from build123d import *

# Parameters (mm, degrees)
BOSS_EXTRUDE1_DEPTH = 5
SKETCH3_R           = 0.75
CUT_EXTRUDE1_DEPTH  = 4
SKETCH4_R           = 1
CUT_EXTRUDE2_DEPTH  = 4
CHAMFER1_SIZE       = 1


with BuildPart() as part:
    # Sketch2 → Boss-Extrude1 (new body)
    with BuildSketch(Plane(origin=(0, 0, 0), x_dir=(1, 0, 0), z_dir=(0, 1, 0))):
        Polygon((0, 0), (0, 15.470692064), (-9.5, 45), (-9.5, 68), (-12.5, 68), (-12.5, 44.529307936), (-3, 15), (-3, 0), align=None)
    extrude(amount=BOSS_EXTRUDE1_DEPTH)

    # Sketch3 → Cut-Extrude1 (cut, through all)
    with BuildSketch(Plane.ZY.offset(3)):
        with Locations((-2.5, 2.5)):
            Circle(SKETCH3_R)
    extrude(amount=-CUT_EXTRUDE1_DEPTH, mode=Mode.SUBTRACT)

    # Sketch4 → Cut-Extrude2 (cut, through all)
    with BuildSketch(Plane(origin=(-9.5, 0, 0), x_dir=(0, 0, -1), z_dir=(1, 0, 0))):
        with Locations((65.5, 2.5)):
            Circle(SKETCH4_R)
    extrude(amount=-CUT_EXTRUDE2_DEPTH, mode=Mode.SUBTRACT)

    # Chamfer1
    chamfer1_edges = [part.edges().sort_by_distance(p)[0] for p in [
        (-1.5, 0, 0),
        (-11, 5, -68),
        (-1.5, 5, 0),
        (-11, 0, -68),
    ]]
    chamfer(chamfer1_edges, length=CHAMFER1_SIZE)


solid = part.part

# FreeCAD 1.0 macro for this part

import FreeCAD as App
import Part
import Sketcher
from FreeCAD import Vector
Q = App.Units.Quantity


def edges_at(feature, points):
    """Names of the edges that pass closest to the given points."""
    edges = feature.Shape.Edges
    near = lambda p: min(range(len(edges)), key=lambda i: edges[i].distToShape(Part.Vertex(*p))[0])
    return sorted({f"Edge{near(p) + 1}" for p in points})

doc = App.newDocument("Part")
body = doc.addObject("PartDesign::Body", "Body")

sketch1 = doc.addObject("Sketcher::SketchObject", "Sketch")
body.addObject(sketch1)
sketch1.AttachmentSupport = (doc.XZ_Plane, [""])
sketch1.MapMode = "FlatFace"
sketch1.addGeometry([
    Part.LineSegment(Vector(0, 0, 0), Vector(0, -15.5, 0)),
    Part.LineSegment(Vector(0, -15.5, 0), Vector(-9.5, -45, 0)),
    Part.LineSegment(Vector(-9.5, -45, 0), Vector(-9.5, -68, 0)),
    Part.LineSegment(Vector(-9.5, -68, 0), Vector(-12.5, -68, 0)),
    Part.LineSegment(Vector(-12.5, -68, 0), Vector(-12.5, -44.5, 0)),
    Part.LineSegment(Vector(-12.5, -44.5, 0), Vector(-3, -15, 0)),
    Part.LineSegment(Vector(-3, -15, 0), Vector(-3, 0, 0)),
    Part.LineSegment(Vector(-3, 0, 0), Vector(0, 0, 0)),
], False)
sketch1.addConstraint([
    Sketcher.Constraint("Coincident", 0, 2, 1, 1),
    Sketcher.Constraint("Coincident", 1, 2, 2, 1),
    Sketcher.Constraint("Coincident", 2, 2, 3, 1),
    Sketcher.Constraint("Coincident", 3, 2, 4, 1),
    Sketcher.Constraint("Coincident", 4, 2, 5, 1),
    Sketcher.Constraint("Coincident", 5, 2, 6, 1),
    Sketcher.Constraint("Coincident", 6, 2, 7, 1),
    Sketcher.Constraint("Coincident", 7, 2, 0, 1),
    Sketcher.Constraint("Vertical", 0),
    Sketcher.Constraint("Vertical", 2),
    Sketcher.Constraint("Horizontal", 3),
    Sketcher.Constraint("Vertical", 4),
    Sketcher.Constraint("Vertical", 6),
    Sketcher.Constraint("Horizontal", 7),
    Sketcher.Constraint("Coincident", 7, 2, -1, 1),
    Sketcher.Constraint("Parallel", 1, 5),
    Sketcher.Constraint("Equal", 3, 7),
    Sketcher.Constraint("DistanceX", 3, 2, 3, 1, Q("3 mm")),
    Sketcher.Constraint("DistanceY", 2, 2, 2, 1, Q("23 mm")),
    Sketcher.Constraint("DistanceY", 6, 1, 6, 2, Q("15 mm")),
    Sketcher.Constraint("DistanceY", 1, 2, -1, 1, Q("45 mm")),
    Sketcher.Constraint("DistanceX", 1, 2, -1, 1, Q("9.5 mm")),
    Sketcher.Constraint("DistanceY", 0, 2, 0, 1, Q("15.470692 mm")),
])
pad1 = doc.addObject("PartDesign::Pad", "Pad")
body.addObject(pad1)
pad1.Profile = sketch1
pad1.Length = 5
pad1.Reversed = True

sketch2 = doc.addObject("Sketcher::SketchObject", "Sketch001")
body.addObject(sketch2)
sketch2.AttachmentSupport = (doc.YZ_Plane, [""])
sketch2.MapMode = "FlatFace"
sketch2.AttachmentOffset = App.Placement(Vector(0, 0, -3), App.Rotation())
sketch2.addGeometry(Part.Circle(Vector(2.5, -2.5, 0), Vector(0, 0, 1), 0.8), False)
sketch2.addConstraint([
    Sketcher.Constraint("Diameter", 0, Q("1.5 mm")),
    Sketcher.Constraint("DistanceX", -1, 1, 0, 3, Q("2.5 mm")),
    Sketcher.Constraint("DistanceY", 0, 3, -1, 1, Q("2.5 mm")),
])
pocket1 = doc.addObject("PartDesign::Pocket", "Pocket")
body.addObject(pocket1)
pocket1.Profile = sketch2
pocket1.Type = "ThroughAll"
pocket1.Reversed = True

sketch3 = doc.addObject("Sketcher::SketchObject", "Sketch002")
body.addObject(sketch3)
sketch3.AttachmentSupport = (doc.YZ_Plane, [""])
sketch3.MapMode = "FlatFace"
sketch3.AttachmentOffset = App.Placement(Vector(0, 0, -9.5), App.Rotation())
sketch3.addGeometry(Part.Circle(Vector(2.5, -65.5, 0), Vector(0, 0, 1), 1), False)
sketch3.addConstraint([
    Sketcher.Constraint("Diameter", 0, Q("2 mm")),
    Sketcher.Constraint("DistanceX", -1, 1, 0, 3, Q("2.5 mm")),
    Sketcher.Constraint("DistanceY", 0, 3, -1, 1, Q("65.5 mm")),
])
pocket2 = doc.addObject("PartDesign::Pocket", "Pocket001")
body.addObject(pocket2)
pocket2.Profile = sketch3
pocket2.Type = "ThroughAll"
doc.recompute()

chamfer = doc.addObject("PartDesign::Chamfer", "Chamfer")
body.addObject(chamfer)
chamfer.Base = (pocket2, edges_at(pocket2, [
    (-1.5, 0, 0),
    (-11, 5, -68),
    (-1.5, 5, 0),
    (-11, 0, -68),
]))
chamfer.Size = 1

doc.recompute()
